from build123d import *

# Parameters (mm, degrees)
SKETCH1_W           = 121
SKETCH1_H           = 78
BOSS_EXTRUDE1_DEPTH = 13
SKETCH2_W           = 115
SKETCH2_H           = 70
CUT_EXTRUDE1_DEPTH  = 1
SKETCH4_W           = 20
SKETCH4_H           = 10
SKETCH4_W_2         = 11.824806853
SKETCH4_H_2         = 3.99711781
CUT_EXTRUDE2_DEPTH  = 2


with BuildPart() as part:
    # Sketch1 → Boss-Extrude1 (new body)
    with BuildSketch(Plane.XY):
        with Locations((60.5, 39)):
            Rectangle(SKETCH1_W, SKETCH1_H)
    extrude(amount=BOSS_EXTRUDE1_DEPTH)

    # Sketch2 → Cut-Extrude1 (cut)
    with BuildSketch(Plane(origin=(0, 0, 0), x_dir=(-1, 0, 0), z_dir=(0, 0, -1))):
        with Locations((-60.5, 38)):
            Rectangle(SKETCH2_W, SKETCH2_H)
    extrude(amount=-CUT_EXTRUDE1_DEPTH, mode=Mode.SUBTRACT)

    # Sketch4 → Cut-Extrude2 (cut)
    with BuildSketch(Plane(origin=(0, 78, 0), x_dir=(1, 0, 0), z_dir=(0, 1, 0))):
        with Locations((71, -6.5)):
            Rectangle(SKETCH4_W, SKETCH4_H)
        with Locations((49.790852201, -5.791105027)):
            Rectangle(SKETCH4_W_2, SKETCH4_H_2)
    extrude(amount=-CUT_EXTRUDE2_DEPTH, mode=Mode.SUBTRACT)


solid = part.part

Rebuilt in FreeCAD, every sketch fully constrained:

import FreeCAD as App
import Part
import Sketcher


def add_polygon(sketch, points):
    """Adds a closed chain of lines whose ends are joined by coincident constraints."""
    first, n = sketch.GeometryCount, len(points)
    for a, b in zip(points, points[1:] + points[:1]):
        sketch.addGeometry(Part.LineSegment(App.Vector(*a, 0), App.Vector(*b, 0)), False)
    for i in range(n):
        sketch.addConstraint(Sketcher.Constraint("Coincident", first + i, 2, first + (i + 1) % n, 1))

doc = App.newDocument("Part")
body = doc.addObject("PartDesign::Body", "Body")

# Sketch on XY plane
sketch1 = doc.addObject("Sketcher::SketchObject", "Sketch")
body.addObject(sketch1)
sketch1.AttachmentSupport = (doc.XY_Plane, [""])
sketch1.MapMode = "FlatFace"
add_polygon(sketch1, [(0, 78), (0, 0), (121, 0), (121, 78)])  # lines 0-3
sketch1.addConstraint([
    Sketcher.Constraint("Vertical", 0),
    Sketcher.Constraint("Horizontal", 1),
    Sketcher.Constraint("Vertical", 2),
    Sketcher.Constraint("Horizontal", 3),
    Sketcher.Constraint("Coincident", 0, 2, -1, 1),
    Sketcher.Constraint("DistanceX", 1, 1, 1, 2, 121.0),
    Sketcher.Constraint("DistanceY", 0, 2, 0, 1, 78.0),
])
pad1 = doc.addObject("PartDesign::Pad", "Pad")
body.addObject(pad1)
pad1.Profile = sketch1
pad1.Length = 13

# Sketch on XY plane
sketch2 = doc.addObject("Sketcher::SketchObject", "Sketch001")
body.addObject(sketch2)
sketch2.AttachmentSupport = (doc.XY_Plane, [""])
sketch2.MapMode = "FlatFace"
add_polygon(sketch2, [(118, 73), (118, 3), (3, 3), (3, 73)])  # lines 0-3
sketch2.addConstraint([
    Sketcher.Constraint("Vertical", 0),
    Sketcher.Constraint("Horizontal", 1),
    Sketcher.Constraint("Vertical", 2),
    Sketcher.Constraint("Horizontal", 3),
    Sketcher.Constraint("DistanceX", 1, 2, 1, 1, 115.0),
    Sketcher.Constraint("DistanceY", 0, 2, 0, 1, 70.0),
    Sketcher.Constraint("DistanceX", -1, 1, 0, 2, 118.0),
    Sketcher.Constraint("DistanceY", -1, 1, 0, 2, 3.0),
])
pocket1 = doc.addObject("PartDesign::Pocket", "Pocket")
body.addObject(pocket1)
pocket1.Profile = sketch2
pocket1.Length = 1
pocket1.Reversed = True

# Sketch on XZ plane
sketch3 = doc.addObject("Sketcher::SketchObject", "Sketch002")
body.addObject(sketch3)
sketch3.AttachmentSupport = (doc.XZ_Plane, [""])
sketch3.MapMode = "FlatFace"
sketch3.AttachmentOffset = App.Placement(App.Vector(0, 0, -78), App.Rotation())
add_polygon(sketch3, [(61, 1.5), (61, 11.5), (81, 11.5), (81, 1.5)])  # lines 0-3
add_polygon(sketch3, [(43.9, 3.8), (43.9, 7.8), (55.7, 7.8), (55.7, 3.8)])  # lines 4-7
sketch3.addConstraint([
    Sketcher.Constraint("Vertical", 0),
    Sketcher.Constraint("Horizontal", 1),
    Sketcher.Constraint("Vertical", 2),
    Sketcher.Constraint("Horizontal", 3),
    Sketcher.Constraint("Vertical", 4),
    Sketcher.Constraint("Horizontal", 5),
    Sketcher.Constraint("Vertical", 6),
    Sketcher.Constraint("Horizontal", 7),
    Sketcher.Constraint("DistanceX", 1, 1, 1, 2, 20.0),
    Sketcher.Constraint("DistanceY", 0, 1, 0, 2, 10.0),
    Sketcher.Constraint("DistanceX", -1, 1, 0, 2, 61.0),
    Sketcher.Constraint("DistanceY", -1, 1, 0, 2, 11.5),
    Sketcher.Constraint("DistanceX", 5, 1, 5, 2, 11.824807),
    Sketcher.Constraint("DistanceY", 4, 1, 4, 2, 3.997118),
    Sketcher.Constraint("DistanceX", -1, 1, 4, 2, 43.878449),
    Sketcher.Constraint("DistanceY", -1, 1, 4, 2, 7.789664),
])
pocket2 = doc.addObject("PartDesign::Pocket", "Pocket001")
body.addObject(pocket2)
pocket2.Profile = sketch3
pocket2.Length = 2
pocket2.Reversed = True

doc.recompute()
